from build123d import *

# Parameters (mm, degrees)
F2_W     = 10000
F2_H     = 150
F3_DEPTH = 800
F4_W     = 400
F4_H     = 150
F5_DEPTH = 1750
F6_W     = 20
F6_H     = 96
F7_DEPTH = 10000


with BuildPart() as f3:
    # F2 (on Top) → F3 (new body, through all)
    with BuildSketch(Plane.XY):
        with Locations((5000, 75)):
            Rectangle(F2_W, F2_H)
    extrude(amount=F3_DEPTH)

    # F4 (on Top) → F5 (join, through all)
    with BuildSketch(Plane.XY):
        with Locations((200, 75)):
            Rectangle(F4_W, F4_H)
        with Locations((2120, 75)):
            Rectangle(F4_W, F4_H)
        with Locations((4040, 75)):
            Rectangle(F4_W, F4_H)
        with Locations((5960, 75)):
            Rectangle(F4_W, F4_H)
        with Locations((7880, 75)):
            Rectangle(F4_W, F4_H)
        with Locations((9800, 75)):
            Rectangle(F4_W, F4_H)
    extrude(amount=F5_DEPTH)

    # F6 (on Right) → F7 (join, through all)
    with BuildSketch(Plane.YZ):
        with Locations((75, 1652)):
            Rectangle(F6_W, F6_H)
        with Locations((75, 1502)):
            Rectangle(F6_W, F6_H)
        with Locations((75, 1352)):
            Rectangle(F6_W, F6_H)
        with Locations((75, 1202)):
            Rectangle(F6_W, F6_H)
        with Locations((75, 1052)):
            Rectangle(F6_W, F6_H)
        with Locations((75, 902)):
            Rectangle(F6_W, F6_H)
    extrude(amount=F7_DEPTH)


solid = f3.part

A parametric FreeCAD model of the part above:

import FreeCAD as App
import Part
import Sketcher
Q = App.Units.Quantity

doc = App.newDocument("Part")
body = doc.addObject("PartDesign::Body", "Body")

sketch1 = doc.addObject("Sketcher::SketchObject", "Sketch")
body.addObject(sketch1)
sketch1.AttachmentSupport = (doc.XY_Plane, [""])
sketch1.MapMode = "FlatFace"
sketch1.addGeometry([
    Part.LineSegment(App.Vector(0, 150, 0), App.Vector(0, 0, 0)),
    Part.LineSegment(App.Vector(0, 0, 0), App.Vector(10000, 0, 0)),
    Part.LineSegment(App.Vector(10000, 0, 0), App.Vector(10000, 150, 0)),
    Part.LineSegment(App.Vector(10000, 150, 0), App.Vector(0, 150, 0)),
], False)
sketch1.addConstraint([
    Sketcher.Constraint("Coincident", 0, 2, 1, 1),
    Sketcher.Constraint("Coincident", 1, 2, 2, 1),
    Sketcher.Constraint("Coincident", 2, 2, 3, 1),
    Sketcher.Constraint("Coincident", 3, 2, 0, 1),
    Sketcher.Constraint("Vertical", 0),
    Sketcher.Constraint("Horizontal", 1),
    Sketcher.Constraint("Vertical", 2),
    Sketcher.Constraint("Horizontal", 3),
    Sketcher.Constraint("Coincident", 0, 2, -1, 1),
    Sketcher.Constraint("DistanceX", 1, 1, 1, 2, Q("10000 mm")),
    Sketcher.Constraint("DistanceY", 0, 2, 0, 1, Q("150 mm")),
])
pad1 = doc.addObject("PartDesign::Pad", "Pad")
body.addObject(pad1)
pad1.Profile = sketch1
pad1.Length = 800

sketch2 = doc.addObject("Sketcher::SketchObject", "Sketch001")
body.addObject(sketch2)
sketch2.AttachmentSupport = (doc.XY_Plane, [""])
sketch2.MapMode = "FlatFace"
sketch2.addGeometry([
    Part.LineSegment(App.Vector(0, 150, 0), App.Vector(0, 0, 0)),
    Part.LineSegment(App.Vector(0, 0, 0), App.Vector(400, 0, 0)),
    Part.LineSegment(App.Vector(400, 0, 0), App.Vector(400, 150, 0)),
    Part.LineSegment(App.Vector(400, 150, 0), App.Vector(0, 150, 0)),
    Part.LineSegment(App.Vector(1920, 150, 0), App.Vector(1920, 0, 0)),
    Part.LineSegment(App.Vector(1920, 0, 0), App.Vector(2320, 0, 0)),
    Part.LineSegment(App.Vector(2320, 0, 0), App.Vector(2320, 150, 0)),
    Part.LineSegment(App.Vector(2320, 150, 0), App.Vector(1920, 150, 0)),
    Part.LineSegment(App.Vector(3840, 150, 0), App.Vector(3840, 0, 0)),
    Part.LineSegment(App.Vector(3840, 0, 0), App.Vector(4240, 0, 0)),
    Part.LineSegment(App.Vector(4240, 0, 0), App.Vector(4240, 150, 0)),
    Part.LineSegment(App.Vector(4240, 150, 0), App.Vector(3840, 150, 0)),
    Part.LineSegment(App.Vector(5760, 150, 0), App.Vector(5760, 0, 0)),
    Part.LineSegment(App.Vector(5760, 0, 0), App.Vector(6160, 0, 0)),
    Part.LineSegment(App.Vector(6160, 0, 0), App.Vector(6160, 150, 0)),
    Part.LineSegment(App.Vector(6160, 150, 0), App.Vector(5760, 150, 0)),
    Part.LineSegment(App.Vector(7680, 150, 0), App.Vector(7680, 0, 0)),
    Part.LineSegment(App.Vector(7680, 0, 0), App.Vector(8080, 0, 0)),
    Part.LineSegment(App.Vector(8080, 0, 0), App.Vector(8080, 150, 0)),
    Part.LineSegment(App.Vector(8080, 150, 0), App.Vector(7680, 150, 0)),
    Part.LineSegment(App.Vector(9600, 150, 0), App.Vector(9600, 0, 0)),
    Part.LineSegment(App.Vector(9600, 0, 0), App.Vector(10000, 0, 0)),
    Part.LineSegment(App.Vector(10000, 0, 0), App.Vector(10000, 150, 0)),
    Part.LineSegment(App.Vector(10000, 150, 0), App.Vector(9600, 150, 0)),
], False)
sketch2.addConstraint([
    Sketcher.Constraint("Coincident", 0, 2, 1, 1),
    Sketcher.Constraint("Coincident", 1, 2, 2, 1),
    Sketcher.Constraint("Coincident", 2, 2, 3, 1),
    Sketcher.Constraint("Coincident", 3, 2, 0, 1),
    Sketcher.Constraint("Coincident", 4, 2, 5, 1),
    Sketcher.Constraint("Coincident", 5, 2, 6, 1),
    Sketcher.Constraint("Coincident", 6, 2, 7, 1),
    Sketcher.Constraint("Coincident", 7, 2, 4, 1),
    Sketcher.Constraint("Coincident", 8, 2, 9, 1),
    Sketcher.Constraint("Coincident", 9, 2, 10, 1),
    Sketcher.Constraint("Coincident", 10, 2, 11, 1),
    Sketcher.Constraint("Coincident", 11, 2, 8, 1),
    Sketcher.Constraint("Coincident", 12, 2, 13, 1),
    Sketcher.Constraint("Coincident", 13, 2, 14, 1),
    Sketcher.Constraint("Coincident", 14, 2, 15, 1),
    Sketcher.Constraint("Coincident", 15, 2, 12, 1),
    Sketcher.Constraint("Coincident", 16, 2, 17, 1),
    Sketcher.Constraint("Coincident", 17, 2, 18, 1),
    Sketcher.Constraint("Coincident", 18, 2, 19, 1),
    Sketcher.Constraint("Coincident", 19, 2, 16, 1),
    Sketcher.Constraint("Coincident", 20, 2, 21, 1),
    Sketcher.Constraint("Coincident", 21, 2, 22, 1),
    Sketcher.Constraint("Coincident", 22, 2, 23, 1),
    Sketcher.Constraint("Coincident", 23, 2, 20, 1),
    Sketcher.Constraint("Vertical", 0),
    Sketcher.Constraint("Horizontal", 1),
    Sketcher.Constraint("Vertical", 2),
    Sketcher.Constraint("Horizontal", 3),
    Sketcher.Constraint("Vertical", 4),
    Sketcher.Constraint("Horizontal", 5),
    Sketcher.Constraint("Vertical", 6),
    Sketcher.Constraint("Horizontal", 7),
    Sketcher.Constraint("Vertical", 8),
    Sketcher.Constraint("Horizontal", 9),
    Sketcher.Constraint("Vertical", 10),
    Sketcher.Constraint("Horizontal", 11),
    Sketcher.Constraint("Vertical", 12),
    Sketcher.Constraint("Horizontal", 13),
    Sketcher.Constraint("Vertical", 14),
    Sketcher.Constraint("Horizontal", 15),
    Sketcher.Constraint("Vertical", 16),
    Sketcher.Constraint("Horizontal", 17),
    Sketcher.Constraint("Vertical", 18),
    Sketcher.Constraint("Horizontal", 19),
    Sketcher.Constraint("Vertical", 20),
    Sketcher.Constraint("Horizontal", 21),
    Sketcher.Constraint("Vertical", 22),
    Sketcher.Constraint("Horizontal", 23),
    Sketcher.Constraint("Coincident", 0, 2, -1, 1),
    Sketcher.Constraint("PointOnObject", 4, 2, -1),
    Sketcher.Constraint("PointOnObject", 8, 2, -1),
    Sketcher.Constraint("PointOnObject", 12, 2, -1),
    Sketcher.Constraint("PointOnObject", 16, 2, -1),
    Sketcher.Constraint("PointOnObject", 20, 2, -1),
    Sketcher.Constraint("Horizontal", 3, 2, 6, 2),
    Sketcher.Constraint("Horizontal", 7, 2, 10, 2),
    Sketcher.Constraint("Horizontal", 11, 2, 14, 2),
    Sketcher.Constraint("Horizontal", 15, 2, 18, 2),
    Sketcher.Constraint("Horizontal", 19, 2, 22, 2),
    Sketcher.Constraint("Equal", 3, 5),
    Sketcher.Constraint("Equal", 7, 9),
    Sketcher.Constraint("Equal", 11, 13),
    Sketcher.Constraint("Equal", 15, 17),
    Sketcher.Constraint("Equal", 19, 21),
    Sketcher.Constraint("DistanceX", 1, 1, 1, 2, Q("400 mm")),
    Sketcher.Constraint("DistanceY", 0, 2, 0, 1, Q("150 mm")),
    Sketcher.Constraint("DistanceX", -1, 1, 4, 2, Q("1920 mm")),
    Sketcher.Constraint("DistanceX", -1, 1, 8, 2, Q("3840 mm")),
    Sketcher.Constraint("DistanceX", -1, 1, 12, 2, Q("5760 mm")),
    Sketcher.Constraint("DistanceX", -1, 1, 16, 2, Q("7680 mm")),
    Sketcher.Constraint("DistanceX", -1, 1, 20, 2, Q("9600 mm")),
])
pad2 = doc.addObject("PartDesign::Pad", "Pad001")
body.addObject(pad2)
pad2.Profile = sketch2
pad2.Length = 1750

sketch3 = doc.addObject("Sketcher::SketchObject", "Sketch002")
body.addObject(sketch3)
sketch3.AttachmentSupport = (doc.YZ_Plane, [""])
sketch3.MapMode = "FlatFace"
sketch3.addGeometry([
    Part.LineSegment(App.Vector(65, 1700, 0), App.Vector(65, 1604, 0)),
    Part.LineSegment(App.Vector(65, 1604, 0), App.Vector(85, 1604, 0)),
    Part.LineSegment(App.Vector(85, 1604, 0), App.Vector(85, 1700, 0)),
    Part.LineSegment(App.Vector(85, 1700, 0), App.Vector(65, 1700, 0)),
    Part.LineSegment(App.Vector(65, 1550, 0), App.Vector(65, 1454, 0)),
    Part.LineSegment(App.Vector(65, 1454, 0), App.Vector(85, 1454, 0)),
    Part.LineSegment(App.Vector(85, 1454, 0), App.Vector(85, 1550, 0)),
    Part.LineSegment(App.Vector(85, 1550, 0), App.Vector(65, 1550, 0)),
    Part.LineSegment(App.Vector(65, 1400, 0), App.Vector(65, 1304, 0)),
    Part.LineSegment(App.Vector(65, 1304, 0), App.Vector(85, 1304, 0)),
    Part.LineSegment(App.Vector(85, 1304, 0), App.Vector(85, 1400, 0)),
    Part.LineSegment(App.Vector(85, 1400, 0), App.Vector(65, 1400, 0)),
    Part.LineSegment(App.Vector(65, 1250, 0), App.Vector(65, 1154, 0)),
    Part.LineSegment(App.Vector(65, 1154, 0), App.Vector(85, 1154, 0)),
    Part.LineSegment(App.Vector(85, 1154, 0), App.Vector(85, 1250, 0)),
    Part.LineSegment(App.Vector(85, 1250, 0), App.Vector(65, 1250, 0)),
    Part.LineSegment(App.Vector(65, 1100, 0), App.Vector(65, 1004, 0)),
    Part.LineSegment(App.Vector(65, 1004, 0), App.Vector(85, 1004, 0)),
    Part.LineSegment(App.Vector(85, 1004, 0), App.Vector(85, 1100, 0)),
    Part.LineSegment(App.Vector(85, 1100, 0), App.Vector(65, 1100, 0)),
    Part.LineSegment(App.Vector(65, 950, 0), App.Vector(65, 854, 0)),
    Part.LineSegment(App.Vector(65, 854, 0), App.Vector(85, 854, 0)),
    Part.LineSegment(App.Vector(85, 854, 0), App.Vector(85, 950, 0)),
    Part.LineSegment(App.Vector(85, 950, 0), App.Vector(65, 950, 0)),
], False)
sketch3.addConstraint([
    Sketcher.Constraint("Coincident", 0, 2, 1, 1),
    Sketcher.Constraint("Coincident", 1, 2, 2, 1),
    Sketcher.Constraint("Coincident", 2, 2, 3, 1),
    Sketcher.Constraint("Coincident", 3, 2, 0, 1),
    Sketcher.Constraint("Coincident", 4, 2, 5, 1),
    Sketcher.Constraint("Coincident", 5, 2, 6, 1),
    Sketcher.Constraint("Coincident", 6, 2, 7, 1),
    Sketcher.Constraint("Coincident", 7, 2, 4, 1),
    Sketcher.Constraint("Coincident", 8, 2, 9, 1),
    Sketcher.Constraint("Coincident", 9, 2, 10, 1),
    Sketcher.Constraint("Coincident", 10, 2, 11, 1),
    Sketcher.Constraint("Coincident", 11, 2, 8, 1),
    Sketcher.Constraint("Coincident", 12, 2, 13, 1),
    Sketcher.Constraint("Coincident", 13, 2, 14, 1),
    Sketcher.Constraint("Coincident", 14, 2, 15, 1),
    Sketcher.Constraint("Coincident", 15, 2, 12, 1),
    Sketcher.Constraint("Coincident", 16, 2, 17, 1),
    Sketcher.Constraint("Coincident", 17, 2, 18, 1),
    Sketcher.Constraint("Coincident", 18, 2, 19, 1),
    Sketcher.Constraint("Coincident", 19, 2, 16, 1),
    Sketcher.Constraint("Coincident", 20, 2, 21, 1),
    Sketcher.Constraint("Coincident", 21, 2, 22, 1),
    Sketcher.Constraint("Coincident", 22, 2, 23, 1),
    Sketcher.Constraint("Coincident", 23, 2, 20, 1),
    Sketcher.Constraint("Vertical", 0),
    Sketcher.Constraint("Horizontal", 1),
    Sketcher.Constraint("Vertical", 2),
    Sketcher.Constraint("Horizontal", 3),
    Sketcher.Constraint("Vertical", 4),
    Sketcher.Constraint("Horizontal", 5),
    Sketcher.Constraint("Vertical", 6),
    Sketcher.Constraint("Horizontal", 7),
    Sketcher.Constraint("Vertical", 8),
    Sketcher.Constraint("Horizontal", 9),
    Sketcher.Constraint("Vertical", 10),
    Sketcher.Constraint("Horizontal", 11),
    Sketcher.Constraint("Vertical", 12),
    Sketcher.Constraint("Horizontal", 13),
    Sketcher.Constraint("Vertical", 14),
    Sketcher.Constraint("Horizontal", 15),
    Sketcher.Constraint("Vertical", 16),
    Sketcher.Constraint("Horizontal", 17),
    Sketcher.Constraint("Vertical", 18),
    Sketcher.Constraint("Horizontal", 19),
    Sketcher.Constraint("Vertical", 20),
    Sketcher.Constraint("Horizontal", 21),
    Sketcher.Constraint("Vertical", 22),
    Sketcher.Constraint("Horizontal", 23),
    Sketcher.Constraint("Vertical", 3, 2, 4, 2),
    Sketcher.Constraint("Vertical", 2, 2, 5, 2),
    Sketcher.Constraint("Vertical", 7, 2, 8, 2),
    Sketcher.Constraint("Vertical", 6, 2, 9, 2),
    Sketcher.Constraint("Vertical", 11, 2, 12, 2),
    Sketcher.Constraint("Vertical", 10, 2, 13, 2),
    Sketcher.Constraint("Vertical", 15, 2, 16, 2),
    Sketcher.Constraint("Vertical", 14, 2, 17, 2),
    Sketcher.Constraint("Vertical", 19, 2, 20, 2),
    Sketcher.Constraint("Vertical", 18, 2, 21, 2),
    Sketcher.Constraint("Equal", 2, 4),
    Sketcher.Constraint("Equal", 6, 8),
    Sketcher.Constraint("Equal", 10, 12),
    Sketcher.Constraint("Equal", 14, 16),
    Sketcher.Constraint("Equal", 18, 20),
    Sketcher.Constraint("DistanceX", 1, 1, 1, 2, Q("20 mm")),
    Sketcher.Constraint("DistanceY", 0, 2, 0, 1, Q("96 mm")),
    Sketcher.Constraint("DistanceX", -1, 1, 0, 2, Q("65 mm")),
    Sketcher.Constraint("DistanceY", -1, 1, 0, 2, Q("1604 mm")),
    Sketcher.Constraint("DistanceY", -1, 1, 4, 2, Q("1454 mm")),
    Sketcher.Constraint("DistanceY", -1, 1, 8, 2, Q("1304 mm")),
    Sketcher.Constraint("DistanceY", -1, 1, 12, 2, Q("1154 mm")),
    Sketcher.Constraint("DistanceY", -1, 1, 16, 2, Q("1004 mm")),
    Sketcher.Constraint("DistanceY", -1, 1, 20, 2, Q("854 mm")),
])
pad3 = doc.addObject("PartDesign::Pad", "Pad002")
body.addObject(pad3)
pad3.Profile = sketch3
pad3.Type = "UpToLast"

doc.recompute()
